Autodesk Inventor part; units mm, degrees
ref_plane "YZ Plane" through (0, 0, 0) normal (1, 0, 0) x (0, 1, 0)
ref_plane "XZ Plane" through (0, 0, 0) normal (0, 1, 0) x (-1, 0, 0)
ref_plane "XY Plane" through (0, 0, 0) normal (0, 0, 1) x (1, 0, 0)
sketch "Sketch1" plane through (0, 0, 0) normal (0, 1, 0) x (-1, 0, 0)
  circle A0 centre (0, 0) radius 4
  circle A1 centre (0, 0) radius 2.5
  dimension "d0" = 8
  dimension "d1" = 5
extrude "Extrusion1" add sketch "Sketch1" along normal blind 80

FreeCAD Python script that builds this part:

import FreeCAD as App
import Part
import Sketcher
from FreeCAD import Vector
Q = App.Units.Quantity

doc = App.newDocument("Part")
params = doc.addObject("Spreadsheet::Sheet", "Params")
for row, (alias, value) in enumerate([
    ("sketch1_diameter", "8 mm"),
    ("sketch1_diameter2", "5 mm"),
    ("pad1_length", "80 mm"),
], start=1):
    params.set(f"A{row}", alias)
    params.set(f"B{row}", "=" + value)
    params.setAlias(f"B{row}", alias)

body = doc.addObject("PartDesign::Body", "Body")

sketch1 = body.newObject("Sketcher::SketchObject", "Sketch")
sketch1.AttachmentSupport = (doc.getObject("XZ_Plane"), [""])
sketch1.MapMode = "FlatFace"
sketch1.addGeometry([
    Part.Circle(Vector(0, 0, 0), Vector(0, 0, 1), 4),
    Part.Circle(Vector(0, 0, 0), Vector(0, 0, 1), 2.5),
], False)
sketch1.addConstraint([
    Sketcher.Constraint("Coincident", 0, 3, -1, 1),
    Sketcher.Constraint("Coincident", 1, 3, -1, 1),
    Sketcher.Constraint("Diameter", 0, Q("8 mm")),
    Sketcher.Constraint("Diameter", 1, Q("5 mm")),
])
sketch1.setExpression("Constraints[2]", "Params.sketch1_diameter")
sketch1.setExpression("Constraints[3]", "Params.sketch1_diameter2")
pad1 = body.newObject("PartDesign::Pad", "Pad")
pad1.Profile = sketch1
pad1.setExpression("Length", "Params.pad1_length")
pad1.Reversed = True

doc.recompute()
